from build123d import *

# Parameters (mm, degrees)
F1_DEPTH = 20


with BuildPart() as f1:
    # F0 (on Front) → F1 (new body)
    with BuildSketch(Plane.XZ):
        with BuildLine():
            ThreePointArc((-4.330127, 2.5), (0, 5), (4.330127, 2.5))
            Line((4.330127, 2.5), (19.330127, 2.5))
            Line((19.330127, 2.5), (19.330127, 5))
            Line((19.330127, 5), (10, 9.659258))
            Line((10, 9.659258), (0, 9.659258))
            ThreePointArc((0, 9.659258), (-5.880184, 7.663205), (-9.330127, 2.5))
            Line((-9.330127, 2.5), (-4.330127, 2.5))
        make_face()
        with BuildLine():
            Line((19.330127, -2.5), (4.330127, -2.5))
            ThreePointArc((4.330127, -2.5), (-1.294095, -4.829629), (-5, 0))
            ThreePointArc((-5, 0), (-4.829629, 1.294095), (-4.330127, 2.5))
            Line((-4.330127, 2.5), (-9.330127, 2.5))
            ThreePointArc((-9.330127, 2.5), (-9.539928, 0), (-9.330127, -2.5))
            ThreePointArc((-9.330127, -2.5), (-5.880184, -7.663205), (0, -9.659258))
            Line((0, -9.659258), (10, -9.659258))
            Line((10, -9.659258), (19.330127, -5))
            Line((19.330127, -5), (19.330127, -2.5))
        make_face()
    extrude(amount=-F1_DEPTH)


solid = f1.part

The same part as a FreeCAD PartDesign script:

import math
import FreeCAD as App
import Part
import Sketcher

doc = App.newDocument("Part")
body = doc.addObject("PartDesign::Body", "Body")

sketch1 = body.newObject("Sketcher::SketchObject", "Sketch")
sketch1.AttachmentSupport = (doc.getObject("XZ_Plane"), [""])
sketch1.MapMode = "FlatFace"
sketch1.addGeometry([
    Part.ArcOfCircle(Part.Circle(App.Vector(0, 0, 0), App.Vector(0, 0, 1), 5), math.radians(30), math.radians(150)),
    Part.LineSegment(App.Vector(4.3, 2.5, 0), App.Vector(19.3, 2.5, 0)),
    Part.LineSegment(App.Vector(19.3, 2.5, 0), App.Vector(19.3, 5, 0)),
    Part.LineSegment(App.Vector(19.3, 5, 0), App.Vector(10, 9.7, 0)),
    Part.LineSegment(App.Vector(10, 9.7, 0), App.Vector(0, 9.7, 0)),
    Part.ArcOfCircle(Part.Circle(App.Vector(0, 0, 0), App.Vector(0, 0, 1), 9.7), math.radians(90), math.radians(165)),
    Part.ArcOfCircle(Part.Circle(App.Vector(5.5, 0, 0), App.Vector(0, 0, 1), 15), math.radians(170.41), math.radians(189.59)),
    Part.ArcOfCircle(Part.Circle(App.Vector(0, 0, 0), App.Vector(0, 0, 1), 9.7), math.radians(-165), math.radians(-90)),
    Part.LineSegment(App.Vector(0, -9.7, 0), App.Vector(10, -9.7, 0)),
    Part.LineSegment(App.Vector(10, -9.7, 0), App.Vector(19.3, -5, 0)),
    Part.LineSegment(App.Vector(19.3, -5, 0), App.Vector(19.3, -2.5, 0)),
    Part.LineSegment(App.Vector(19.3, -2.5, 0), App.Vector(4.3, -2.5, 0)),
    Part.ArcOfCircle(Part.Circle(App.Vector(0, 0, 0), App.Vector(0, 0, 1), 5), math.radians(-180), math.radians(-30)),
    Part.ArcOfCircle(Part.Circle(App.Vector(0, 0, 0), App.Vector(0, 0, 1), 5), math.radians(150), math.radians(180)),
], False)
sketch1.addConstraint([
    Sketcher.Constraint("Coincident", 0, 1, 1, 1),
    Sketcher.Constraint("Coincident", 1, 2, 2, 1),
    Sketcher.Constraint("Coincident", 2, 2, 3, 1),
    Sketcher.Constraint("Coincident", 3, 2, 4, 1),
    Sketcher.Constraint("Tangent", 4, 2, 5, 1),
    Sketcher.Constraint("Coincident", 5, 2, 6, 1),
    Sketcher.Constraint("Coincident", 6, 2, 7, 1),
    Sketcher.Constraint("Tangent", 7, 2, 8, 1),
    Sketcher.Constraint("Coincident", 8, 2, 9, 1),
    Sketcher.Constraint("Coincident", 9, 2, 10, 1),
    Sketcher.Constraint("Coincident", 10, 2, 11, 1),
    Sketcher.Constraint("Coincident", 11, 2, 12, 2),
    Sketcher.Constraint("Tangent", 12, 1, 13, 2),
    Sketcher.Constraint("Tangent", 13, 1, 0, 2),
    Sketcher.Constraint("Horizontal", 1),
    Sketcher.Constraint("Vertical", 2),
    Sketcher.Constraint("Horizontal", 4),
    Sketcher.Constraint("Horizontal", 8),
    Sketcher.Constraint("Vertical", 10),
    Sketcher.Constraint("Horizontal", 11),
    Sketcher.Constraint("Coincident", 0, 3, -1, 1),
    Sketcher.Constraint("Coincident", 5, 3, -1, 1),
    Sketcher.Constraint("Coincident", 7, 3, -1, 1),
    Sketcher.Constraint("Coincident", 12, 3, -1, 1),
    Sketcher.Constraint("Equal", 5, 7),
    Sketcher.Constraint("Symmetric", 2, 2, 9, 2, -1),
    Sketcher.Constraint("PointOnObject", 6, 3, -1),
    Sketcher.Constraint("PointOnObject", 12, 1, -1),
    Sketcher.Constraint("Horizontal", 1, 2, 5, 2),
    Sketcher.Constraint("Horizontal", 6, 2, 10, 2),
    Sketcher.Constraint("Horizontal", 5, 2, 13, 1),
    Sketcher.Constraint("Vertical", 3, 2, 8, 2),
    Sketcher.Constraint("Radius", 0, 5.0),
    Sketcher.Constraint("DistanceX", 1, 1, 1, 2, 15.0),
    Sketcher.Constraint("DistanceX", 4, 2, 4, 1, 10.0),
    Sketcher.Constraint("DistanceY", 2, 1, 2, 2, 2.5),
    Sketcher.Constraint("DistanceY", -1, 1, 2, 2, 5.0),
    Sketcher.Constraint("Radius", 5, 9.659257),
    Sketcher.Constraint("Radius", 6, 14.999968),
])
pad1 = body.newObject("PartDesign::Pad", "Pad")
pad1.Profile = sketch1
pad1.Length = 20
pad1.Reversed = True

doc.recompute()
